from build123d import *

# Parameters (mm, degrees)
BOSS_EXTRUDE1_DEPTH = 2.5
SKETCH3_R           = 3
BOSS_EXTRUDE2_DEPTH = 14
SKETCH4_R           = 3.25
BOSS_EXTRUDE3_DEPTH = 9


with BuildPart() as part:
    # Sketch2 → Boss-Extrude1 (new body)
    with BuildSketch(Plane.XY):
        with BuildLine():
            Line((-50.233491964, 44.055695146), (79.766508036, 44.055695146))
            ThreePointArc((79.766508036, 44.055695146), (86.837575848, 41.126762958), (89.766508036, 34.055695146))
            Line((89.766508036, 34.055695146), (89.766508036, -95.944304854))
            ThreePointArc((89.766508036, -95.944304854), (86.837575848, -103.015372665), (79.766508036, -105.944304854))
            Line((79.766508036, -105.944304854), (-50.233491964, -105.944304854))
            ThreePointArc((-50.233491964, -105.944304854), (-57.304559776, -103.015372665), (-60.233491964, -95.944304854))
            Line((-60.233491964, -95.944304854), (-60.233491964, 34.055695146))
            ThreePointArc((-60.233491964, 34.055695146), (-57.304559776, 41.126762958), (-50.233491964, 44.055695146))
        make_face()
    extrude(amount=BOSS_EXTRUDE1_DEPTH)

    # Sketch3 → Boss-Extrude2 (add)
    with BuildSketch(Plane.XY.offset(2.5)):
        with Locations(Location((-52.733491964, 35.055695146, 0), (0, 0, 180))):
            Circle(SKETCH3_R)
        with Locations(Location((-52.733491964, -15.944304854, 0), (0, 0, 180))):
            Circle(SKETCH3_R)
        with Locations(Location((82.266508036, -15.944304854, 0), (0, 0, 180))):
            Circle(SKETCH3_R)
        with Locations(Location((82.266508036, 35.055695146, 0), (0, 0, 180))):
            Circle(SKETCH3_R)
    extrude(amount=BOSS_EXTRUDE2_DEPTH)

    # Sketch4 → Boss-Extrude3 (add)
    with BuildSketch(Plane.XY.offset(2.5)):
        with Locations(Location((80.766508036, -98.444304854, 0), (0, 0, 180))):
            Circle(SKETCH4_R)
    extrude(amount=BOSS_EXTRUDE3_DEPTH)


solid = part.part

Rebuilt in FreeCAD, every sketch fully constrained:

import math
import FreeCAD as App
import Part
import Sketcher
Q = App.Units.Quantity

doc = App.newDocument("Part")
body = doc.addObject("PartDesign::Body", "Body")

sketch1 = doc.addObject("Sketcher::SketchObject", "Sketch")
body.addObject(sketch1)
sketch1.AttachmentSupport = (doc.XY_Plane, [""])
sketch1.MapMode = "FlatFace"
sketch1.addGeometry(Part.LineSegment(App.Vector(80, 44, 0), App.Vector(-50, 44, 0)), False)
sketch1.addGeometry(Part.ArcOfCircle(Part.Circle(App.Vector(-50, 34, 0), App.Vector(0, 0, 1), 10), math.radians(90), math.radians(180)), False)
sketch1.addGeometry(Part.LineSegment(App.Vector(-60, 34, 0), App.Vector(-60, -96, 0)), False)
sketch1.addGeometry(Part.ArcOfCircle(Part.Circle(App.Vector(-50, -96, 0), App.Vector(0, 0, 1), 10), math.radians(-180), math.radians(-90)), False)
sketch1.addGeometry(Part.LineSegment(App.Vector(-50, -106, 0), App.Vector(80, -106, 0)), False)
sketch1.addGeometry(Part.ArcOfCircle(Part.Circle(App.Vector(80, -96, 0), App.Vector(0, 0, 1), 10), math.radians(-90), math.radians(0)), False)
sketch1.addGeometry(Part.LineSegment(App.Vector(90, -96, 0), App.Vector(90, 34, 0)), False)
sketch1.addGeometry(Part.ArcOfCircle(Part.Circle(App.Vector(80, 34, 0), App.Vector(0, 0, 1), 10), math.radians(0), math.radians(90)), False)
sketch1.addConstraint(Sketcher.Constraint("Tangent", 0, 2, 1, 1))
sketch1.addConstraint(Sketcher.Constraint("Tangent", 1, 2, 2, 1))
sketch1.addConstraint(Sketcher.Constraint("Tangent", 2, 2, 3, 1))
sketch1.addConstraint(Sketcher.Constraint("Tangent", 3, 2, 4, 1))
sketch1.addConstraint(Sketcher.Constraint("Tangent", 4, 2, 5, 1))
sketch1.addConstraint(Sketcher.Constraint("Tangent", 5, 2, 6, 1))
sketch1.addConstraint(Sketcher.Constraint("Tangent", 6, 2, 7, 1))
sketch1.addConstraint(Sketcher.Constraint("Tangent", 7, 2, 0, 1))
sketch1.addConstraint(Sketcher.Constraint("Horizontal", 0))
sketch1.addConstraint(Sketcher.Constraint("Vertical", 2))
sketch1.addConstraint(Sketcher.Constraint("Horizontal", 4))
sketch1.addConstraint(Sketcher.Constraint("Vertical", 6))
sketch1.addConstraint(Sketcher.Constraint("Equal", 1, 3))
sketch1.addConstraint(Sketcher.Constraint("Equal", 3, 5))
sketch1.addConstraint(Sketcher.Constraint("Equal", 5, 7))
sketch1.addConstraint(Sketcher.Constraint("Equal", 4, 2))
sketch1.addConstraint(Sketcher.Constraint("Radius", 1, Q("10 mm")))
sketch1.addConstraint(Sketcher.Constraint("DistanceX", 0, 2, 0, 1, Q("130 mm")))
sketch1.addConstraint(Sketcher.Constraint("DistanceX", 1, 3, -1, 1, Q("50.233492 mm")))
sketch1.addConstraint(Sketcher.Constraint("DistanceY", -1, 1, 1, 3, Q("34.055695 mm")))
pad1 = doc.addObject("PartDesign::Pad", "Pad")
body.addObject(pad1)
pad1.Profile = sketch1
pad1.Length = 2.5

sketch2 = doc.addObject("Sketcher::SketchObject", "Sketch001")
body.addObject(sketch2)
sketch2.AttachmentSupport = (doc.XY_Plane, [""])
sketch2.MapMode = "FlatFace"
sketch2.AttachmentOffset = App.Placement(App.Vector(0, 0, 2.5), App.Rotation())
sketch2.addGeometry(Part.Circle(App.Vector(-52.7, 35.1, 0), App.Vector(0, 0, 1), 3), False)
sketch2.addGeometry(Part.Circle(App.Vector(-52.7, -15.9, 0), App.Vector(0, 0, 1), 3), False)
sketch2.addGeometry(Part.Circle(App.Vector(82.3, -15.9, 0), App.Vector(0, 0, 1), 3), False)
sketch2.addGeometry(Part.Circle(App.Vector(82.3, 35.1, 0), App.Vector(0, 0, 1), 3), False)
sketch2.addConstraint(Sketcher.Constraint("Equal", 0, 1))
sketch2.addConstraint(Sketcher.Constraint("Equal", 1, 2))
sketch2.addConstraint(Sketcher.Constraint("Equal", 2, 3))
sketch2.addConstraint(Sketcher.Constraint("Horizontal", 1, 3, 2, 3))
sketch2.addConstraint(Sketcher.Constraint("Horizontal", 0, 3, 3, 3))
sketch2.addConstraint(Sketcher.Constraint("Vertical", 0, 3, 1, 3))
sketch2.addConstraint(Sketcher.Constraint("Vertical", 2, 3, 3, 3))
sketch2.addConstraint(Sketcher.Constraint("Diameter", 0, Q("6 mm")))
sketch2.addConstraint(Sketcher.Constraint("DistanceY", 1, 3, 0, 3, Q("51 mm")))
sketch2.addConstraint(Sketcher.Constraint("DistanceX", 1, 3, 2, 3, Q("135 mm")))
sketch2.addConstraint(Sketcher.Constraint("DistanceX", 0, 3, -1, 1, Q("52.733492 mm")))
sketch2.addConstraint(Sketcher.Constraint("DistanceY", -1, 1, 0, 3, Q("35.055695 mm")))
pad2 = doc.addObject("PartDesign::Pad", "Pad001")
body.addObject(pad2)
pad2.Profile = sketch2
pad2.Length = 14

sketch3 = doc.addObject("Sketcher::SketchObject", "Sketch002")
body.addObject(sketch3)
sketch3.AttachmentSupport = (doc.XY_Plane, [""])
sketch3.MapMode = "FlatFace"
sketch3.AttachmentOffset = App.Placement(App.Vector(0, 0, 2.5), App.Rotation())
sketch3.addGeometry(Part.Circle(App.Vector(80.8, -98.4, 0), App.Vector(0, 0, 1), 3.2), False)
sketch3.addConstraint(Sketcher.Constraint("Diameter", 0, Q("6.5 mm")))
sketch3.addConstraint(Sketcher.Constraint("DistanceX", -1, 1, 0, 3, Q("80.766508 mm")))
sketch3.addConstraint(Sketcher.Constraint("DistanceY", 0, 3, -1, 1, Q("98.444305 mm")))
pad3 = doc.addObject("PartDesign::Pad", "Pad002")
body.addObject(pad3)
pad3.Profile = sketch3
pad3.Length = 9

doc.recompute()
